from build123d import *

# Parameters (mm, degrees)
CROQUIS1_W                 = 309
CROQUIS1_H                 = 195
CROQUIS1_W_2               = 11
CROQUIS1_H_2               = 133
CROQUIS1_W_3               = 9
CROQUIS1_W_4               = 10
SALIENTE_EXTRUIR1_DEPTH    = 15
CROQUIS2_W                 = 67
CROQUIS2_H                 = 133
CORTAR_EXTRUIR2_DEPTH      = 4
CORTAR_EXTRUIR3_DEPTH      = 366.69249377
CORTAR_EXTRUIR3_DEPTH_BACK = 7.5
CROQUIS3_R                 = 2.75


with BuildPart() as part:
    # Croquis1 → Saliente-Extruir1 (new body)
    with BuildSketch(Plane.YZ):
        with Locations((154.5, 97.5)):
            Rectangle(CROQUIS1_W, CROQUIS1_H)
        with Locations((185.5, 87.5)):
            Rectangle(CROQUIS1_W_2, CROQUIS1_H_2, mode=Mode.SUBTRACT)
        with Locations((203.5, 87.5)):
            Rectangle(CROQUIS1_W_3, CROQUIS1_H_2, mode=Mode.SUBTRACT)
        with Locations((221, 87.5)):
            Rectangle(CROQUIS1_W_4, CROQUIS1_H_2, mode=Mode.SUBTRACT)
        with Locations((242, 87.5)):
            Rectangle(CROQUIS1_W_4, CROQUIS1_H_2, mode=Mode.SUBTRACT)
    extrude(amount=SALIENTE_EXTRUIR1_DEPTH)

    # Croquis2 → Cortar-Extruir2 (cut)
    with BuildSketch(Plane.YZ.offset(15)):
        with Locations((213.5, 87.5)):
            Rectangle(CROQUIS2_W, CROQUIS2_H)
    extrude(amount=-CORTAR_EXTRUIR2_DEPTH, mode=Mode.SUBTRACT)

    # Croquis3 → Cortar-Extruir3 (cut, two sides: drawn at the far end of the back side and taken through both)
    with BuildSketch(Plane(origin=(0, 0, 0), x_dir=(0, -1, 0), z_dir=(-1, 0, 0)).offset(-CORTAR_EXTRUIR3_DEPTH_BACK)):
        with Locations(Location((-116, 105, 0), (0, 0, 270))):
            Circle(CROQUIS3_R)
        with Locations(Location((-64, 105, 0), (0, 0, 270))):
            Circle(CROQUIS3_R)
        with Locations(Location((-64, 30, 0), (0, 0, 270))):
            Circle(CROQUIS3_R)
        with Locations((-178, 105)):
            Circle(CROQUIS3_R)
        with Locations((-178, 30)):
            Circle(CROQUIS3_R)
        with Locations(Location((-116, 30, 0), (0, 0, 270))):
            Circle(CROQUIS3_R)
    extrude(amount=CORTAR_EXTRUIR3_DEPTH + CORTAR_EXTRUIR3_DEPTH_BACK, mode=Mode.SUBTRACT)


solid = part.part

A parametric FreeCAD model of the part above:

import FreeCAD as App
import Part
import Sketcher
Q = App.Units.Quantity


def add_polygon(sketch, points):
    """Adds a closed chain of lines whose ends are joined by coincident constraints."""
    first, n = sketch.GeometryCount, len(points)
    for a, b in zip(points, points[1:] + points[:1]):
        sketch.addGeometry(Part.LineSegment(App.Vector(*a, 0), App.Vector(*b, 0)), False)
    for i in range(n):
        sketch.addConstraint(Sketcher.Constraint("Coincident", first + i, 2, first + (i + 1) % n, 1))

doc = App.newDocument("Part")
body = doc.addObject("PartDesign::Body", "Body")

# Sketch on YZ plane
sketch1 = body.newObject("Sketcher::SketchObject", "Sketch")
sketch1.AttachmentSupport = (doc.getObject("YZ_Plane"), [""])
sketch1.MapMode = "FlatFace"
add_polygon(sketch1, [(0, 195), (0, 0), (309, 0), (309, 195)])  # lines 0-3
add_polygon(sketch1, [(191, 21), (180, 21), (180, 154), (191, 154)])  # lines 4-7
add_polygon(sketch1, [(208, 21), (199, 21), (199, 154), (208, 154)])  # lines 8-11
add_polygon(sketch1, [(226, 21), (216, 21), (216, 154), (226, 154)])  # lines 12-15
add_polygon(sketch1, [(247, 21), (237, 21), (237, 154), (247, 154)])  # lines 16-19
sketch1.addConstraint([
    Sketcher.Constraint("Vertical", 0),
    Sketcher.Constraint("Horizontal", 1),
    Sketcher.Constraint("Vertical", 2),
    Sketcher.Constraint("Horizontal", 3),
    Sketcher.Constraint("Horizontal", 4),
    Sketcher.Constraint("Vertical", 5),
    Sketcher.Constraint("Horizontal", 6),
    Sketcher.Constraint("Vertical", 7),
    Sketcher.Constraint("Horizontal", 8),
    Sketcher.Constraint("Vertical", 9),
    Sketcher.Constraint("Horizontal", 10),
    Sketcher.Constraint("Vertical", 11),
    Sketcher.Constraint("Horizontal", 12),
    Sketcher.Constraint("Vertical", 13),
    Sketcher.Constraint("Horizontal", 14),
    Sketcher.Constraint("Vertical", 15),
    Sketcher.Constraint("Horizontal", 16),
    Sketcher.Constraint("Vertical", 17),
    Sketcher.Constraint("Horizontal", 18),
    Sketcher.Constraint("Vertical", 19),
    Sketcher.Constraint("Coincident", 0, 2, -1, 1),
    Sketcher.Constraint("Horizontal", 7, 2, 8, 2),
    Sketcher.Constraint("Horizontal", 6, 2, 9, 2),
    Sketcher.Constraint("Horizontal", 11, 2, 12, 2),
    Sketcher.Constraint("Horizontal", 10, 2, 13, 2),
    Sketcher.Constraint("Horizontal", 15, 2, 16, 2),
    Sketcher.Constraint("Horizontal", 14, 2, 17, 2),
    Sketcher.Constraint("Equal", 14, 16),
    Sketcher.Constraint("DistanceX", 1, 1, 1, 2, Q("309 mm")),
    Sketcher.Constraint("DistanceX", 4, 2, 4, 1, Q("11 mm")),
    Sketcher.Constraint("DistanceX", 8, 2, 8, 1, Q("9 mm")),
    Sketcher.Constraint("DistanceX", 12, 2, 12, 1, Q("10 mm")),
    Sketcher.Constraint("DistanceY", 0, 2, 0, 1, Q("195 mm")),
    Sketcher.Constraint("DistanceY", 5, 1, 5, 2, Q("133 mm")),
    Sketcher.Constraint("DistanceX", -1, 1, 4, 2, Q("180 mm")),
    Sketcher.Constraint("DistanceY", -1, 1, 4, 2, Q("21 mm")),
    Sketcher.Constraint("DistanceX", -1, 1, 8, 2, Q("199 mm")),
    Sketcher.Constraint("DistanceX", -1, 1, 12, 2, Q("216 mm")),
    Sketcher.Constraint("DistanceX", -1, 1, 16, 2, Q("237 mm")),
])
pad1 = body.newObject("PartDesign::Pad", "Pad")
pad1.Profile = sketch1
pad1.Length = 15

# Sketch on YZ plane
sketch2 = body.newObject("Sketcher::SketchObject", "Sketch001")
sketch2.AttachmentSupport = (doc.getObject("YZ_Plane"), [""])
sketch2.MapMode = "FlatFace"
sketch2.AttachmentOffset = App.Placement(App.Vector(0, 0, 15), App.Rotation())
add_polygon(sketch2, [(180, 154), (180, 21), (247, 21), (247, 154)])  # lines 0-3
sketch2.addConstraint([
    Sketcher.Constraint("Vertical", 0),
    Sketcher.Constraint("Horizontal", 1),
    Sketcher.Constraint("Vertical", 2),
    Sketcher.Constraint("Horizontal", 3),
    Sketcher.Constraint("DistanceX", 1, 1, 1, 2, Q("67 mm")),
    Sketcher.Constraint("DistanceY", 0, 2, 0, 1, Q("133 mm")),
    Sketcher.Constraint("DistanceX", -1, 1, 0, 2, Q("180 mm")),
    Sketcher.Constraint("DistanceY", -1, 1, 0, 2, Q("21 mm")),
])
pocket1 = body.newObject("PartDesign::Pocket", "Pocket")
pocket1.Profile = sketch2
pocket1.Length = 4

# Sketch on YZ plane
sketch3 = body.newObject("Sketcher::SketchObject", "Sketch002")
sketch3.AttachmentSupport = (doc.getObject("YZ_Plane"), [""])
sketch3.MapMode = "FlatFace"
sketch3.addGeometry([
    Part.Circle(App.Vector(116, 105, 0), App.Vector(0, 0, 1), 2.8),  # 0
    Part.Circle(App.Vector(64, 105, 0), App.Vector(0, 0, 1), 2.8),  # 1
    Part.Circle(App.Vector(64, 30, 0), App.Vector(0, 0, 1), 2.8),  # 2
    Part.Circle(App.Vector(178, 105, 0), App.Vector(0, 0, 1), 2.8),  # 3
    Part.Circle(App.Vector(178, 30, 0), App.Vector(0, 0, 1), 2.8),  # 4
    Part.Circle(App.Vector(116, 30, 0), App.Vector(0, 0, 1), 2.8),  # 5
], False)
sketch3.addConstraint([
    Sketcher.Constraint("Equal", 0, 1),
    Sketcher.Constraint("Equal", 1, 2),
    Sketcher.Constraint("Equal", 2, 3),
    Sketcher.Constraint("Equal", 3, 4),
    Sketcher.Constraint("Equal", 4, 5),
    Sketcher.Constraint("Horizontal", 0, 3, 1, 3),
    Sketcher.Constraint("Horizontal", 1, 3, 3, 3),
    Sketcher.Constraint("Horizontal", 2, 3, 4, 3),
    Sketcher.Constraint("Horizontal", 4, 3, 5, 3),
    Sketcher.Constraint("Vertical", 1, 3, 2, 3),
    Sketcher.Constraint("Vertical", 3, 3, 4, 3),
    Sketcher.Constraint("Vertical", 0, 3, 5, 3),
    Sketcher.Constraint("Diameter", 0, Q("5.5 mm")),
    Sketcher.Constraint("DistanceX", -1, 1, 0, 3, Q("116 mm")),
    Sketcher.Constraint("DistanceY", -1, 1, 0, 3, Q("105 mm")),
    Sketcher.Constraint("DistanceX", -1, 1, 1, 3, Q("64 mm")),
    Sketcher.Constraint("DistanceY", -1, 1, 2, 3, Q("30 mm")),
    Sketcher.Constraint("DistanceX", -1, 1, 3, 3, Q("178 mm")),
])
pocket2 = body.newObject("PartDesign::Pocket", "Pocket001")
pocket2.Profile = sketch3
pocket2.Type = "TwoLengths"
pocket2.Length = 366.692494
pocket2.Length2 = 7.5

doc.recompute()
